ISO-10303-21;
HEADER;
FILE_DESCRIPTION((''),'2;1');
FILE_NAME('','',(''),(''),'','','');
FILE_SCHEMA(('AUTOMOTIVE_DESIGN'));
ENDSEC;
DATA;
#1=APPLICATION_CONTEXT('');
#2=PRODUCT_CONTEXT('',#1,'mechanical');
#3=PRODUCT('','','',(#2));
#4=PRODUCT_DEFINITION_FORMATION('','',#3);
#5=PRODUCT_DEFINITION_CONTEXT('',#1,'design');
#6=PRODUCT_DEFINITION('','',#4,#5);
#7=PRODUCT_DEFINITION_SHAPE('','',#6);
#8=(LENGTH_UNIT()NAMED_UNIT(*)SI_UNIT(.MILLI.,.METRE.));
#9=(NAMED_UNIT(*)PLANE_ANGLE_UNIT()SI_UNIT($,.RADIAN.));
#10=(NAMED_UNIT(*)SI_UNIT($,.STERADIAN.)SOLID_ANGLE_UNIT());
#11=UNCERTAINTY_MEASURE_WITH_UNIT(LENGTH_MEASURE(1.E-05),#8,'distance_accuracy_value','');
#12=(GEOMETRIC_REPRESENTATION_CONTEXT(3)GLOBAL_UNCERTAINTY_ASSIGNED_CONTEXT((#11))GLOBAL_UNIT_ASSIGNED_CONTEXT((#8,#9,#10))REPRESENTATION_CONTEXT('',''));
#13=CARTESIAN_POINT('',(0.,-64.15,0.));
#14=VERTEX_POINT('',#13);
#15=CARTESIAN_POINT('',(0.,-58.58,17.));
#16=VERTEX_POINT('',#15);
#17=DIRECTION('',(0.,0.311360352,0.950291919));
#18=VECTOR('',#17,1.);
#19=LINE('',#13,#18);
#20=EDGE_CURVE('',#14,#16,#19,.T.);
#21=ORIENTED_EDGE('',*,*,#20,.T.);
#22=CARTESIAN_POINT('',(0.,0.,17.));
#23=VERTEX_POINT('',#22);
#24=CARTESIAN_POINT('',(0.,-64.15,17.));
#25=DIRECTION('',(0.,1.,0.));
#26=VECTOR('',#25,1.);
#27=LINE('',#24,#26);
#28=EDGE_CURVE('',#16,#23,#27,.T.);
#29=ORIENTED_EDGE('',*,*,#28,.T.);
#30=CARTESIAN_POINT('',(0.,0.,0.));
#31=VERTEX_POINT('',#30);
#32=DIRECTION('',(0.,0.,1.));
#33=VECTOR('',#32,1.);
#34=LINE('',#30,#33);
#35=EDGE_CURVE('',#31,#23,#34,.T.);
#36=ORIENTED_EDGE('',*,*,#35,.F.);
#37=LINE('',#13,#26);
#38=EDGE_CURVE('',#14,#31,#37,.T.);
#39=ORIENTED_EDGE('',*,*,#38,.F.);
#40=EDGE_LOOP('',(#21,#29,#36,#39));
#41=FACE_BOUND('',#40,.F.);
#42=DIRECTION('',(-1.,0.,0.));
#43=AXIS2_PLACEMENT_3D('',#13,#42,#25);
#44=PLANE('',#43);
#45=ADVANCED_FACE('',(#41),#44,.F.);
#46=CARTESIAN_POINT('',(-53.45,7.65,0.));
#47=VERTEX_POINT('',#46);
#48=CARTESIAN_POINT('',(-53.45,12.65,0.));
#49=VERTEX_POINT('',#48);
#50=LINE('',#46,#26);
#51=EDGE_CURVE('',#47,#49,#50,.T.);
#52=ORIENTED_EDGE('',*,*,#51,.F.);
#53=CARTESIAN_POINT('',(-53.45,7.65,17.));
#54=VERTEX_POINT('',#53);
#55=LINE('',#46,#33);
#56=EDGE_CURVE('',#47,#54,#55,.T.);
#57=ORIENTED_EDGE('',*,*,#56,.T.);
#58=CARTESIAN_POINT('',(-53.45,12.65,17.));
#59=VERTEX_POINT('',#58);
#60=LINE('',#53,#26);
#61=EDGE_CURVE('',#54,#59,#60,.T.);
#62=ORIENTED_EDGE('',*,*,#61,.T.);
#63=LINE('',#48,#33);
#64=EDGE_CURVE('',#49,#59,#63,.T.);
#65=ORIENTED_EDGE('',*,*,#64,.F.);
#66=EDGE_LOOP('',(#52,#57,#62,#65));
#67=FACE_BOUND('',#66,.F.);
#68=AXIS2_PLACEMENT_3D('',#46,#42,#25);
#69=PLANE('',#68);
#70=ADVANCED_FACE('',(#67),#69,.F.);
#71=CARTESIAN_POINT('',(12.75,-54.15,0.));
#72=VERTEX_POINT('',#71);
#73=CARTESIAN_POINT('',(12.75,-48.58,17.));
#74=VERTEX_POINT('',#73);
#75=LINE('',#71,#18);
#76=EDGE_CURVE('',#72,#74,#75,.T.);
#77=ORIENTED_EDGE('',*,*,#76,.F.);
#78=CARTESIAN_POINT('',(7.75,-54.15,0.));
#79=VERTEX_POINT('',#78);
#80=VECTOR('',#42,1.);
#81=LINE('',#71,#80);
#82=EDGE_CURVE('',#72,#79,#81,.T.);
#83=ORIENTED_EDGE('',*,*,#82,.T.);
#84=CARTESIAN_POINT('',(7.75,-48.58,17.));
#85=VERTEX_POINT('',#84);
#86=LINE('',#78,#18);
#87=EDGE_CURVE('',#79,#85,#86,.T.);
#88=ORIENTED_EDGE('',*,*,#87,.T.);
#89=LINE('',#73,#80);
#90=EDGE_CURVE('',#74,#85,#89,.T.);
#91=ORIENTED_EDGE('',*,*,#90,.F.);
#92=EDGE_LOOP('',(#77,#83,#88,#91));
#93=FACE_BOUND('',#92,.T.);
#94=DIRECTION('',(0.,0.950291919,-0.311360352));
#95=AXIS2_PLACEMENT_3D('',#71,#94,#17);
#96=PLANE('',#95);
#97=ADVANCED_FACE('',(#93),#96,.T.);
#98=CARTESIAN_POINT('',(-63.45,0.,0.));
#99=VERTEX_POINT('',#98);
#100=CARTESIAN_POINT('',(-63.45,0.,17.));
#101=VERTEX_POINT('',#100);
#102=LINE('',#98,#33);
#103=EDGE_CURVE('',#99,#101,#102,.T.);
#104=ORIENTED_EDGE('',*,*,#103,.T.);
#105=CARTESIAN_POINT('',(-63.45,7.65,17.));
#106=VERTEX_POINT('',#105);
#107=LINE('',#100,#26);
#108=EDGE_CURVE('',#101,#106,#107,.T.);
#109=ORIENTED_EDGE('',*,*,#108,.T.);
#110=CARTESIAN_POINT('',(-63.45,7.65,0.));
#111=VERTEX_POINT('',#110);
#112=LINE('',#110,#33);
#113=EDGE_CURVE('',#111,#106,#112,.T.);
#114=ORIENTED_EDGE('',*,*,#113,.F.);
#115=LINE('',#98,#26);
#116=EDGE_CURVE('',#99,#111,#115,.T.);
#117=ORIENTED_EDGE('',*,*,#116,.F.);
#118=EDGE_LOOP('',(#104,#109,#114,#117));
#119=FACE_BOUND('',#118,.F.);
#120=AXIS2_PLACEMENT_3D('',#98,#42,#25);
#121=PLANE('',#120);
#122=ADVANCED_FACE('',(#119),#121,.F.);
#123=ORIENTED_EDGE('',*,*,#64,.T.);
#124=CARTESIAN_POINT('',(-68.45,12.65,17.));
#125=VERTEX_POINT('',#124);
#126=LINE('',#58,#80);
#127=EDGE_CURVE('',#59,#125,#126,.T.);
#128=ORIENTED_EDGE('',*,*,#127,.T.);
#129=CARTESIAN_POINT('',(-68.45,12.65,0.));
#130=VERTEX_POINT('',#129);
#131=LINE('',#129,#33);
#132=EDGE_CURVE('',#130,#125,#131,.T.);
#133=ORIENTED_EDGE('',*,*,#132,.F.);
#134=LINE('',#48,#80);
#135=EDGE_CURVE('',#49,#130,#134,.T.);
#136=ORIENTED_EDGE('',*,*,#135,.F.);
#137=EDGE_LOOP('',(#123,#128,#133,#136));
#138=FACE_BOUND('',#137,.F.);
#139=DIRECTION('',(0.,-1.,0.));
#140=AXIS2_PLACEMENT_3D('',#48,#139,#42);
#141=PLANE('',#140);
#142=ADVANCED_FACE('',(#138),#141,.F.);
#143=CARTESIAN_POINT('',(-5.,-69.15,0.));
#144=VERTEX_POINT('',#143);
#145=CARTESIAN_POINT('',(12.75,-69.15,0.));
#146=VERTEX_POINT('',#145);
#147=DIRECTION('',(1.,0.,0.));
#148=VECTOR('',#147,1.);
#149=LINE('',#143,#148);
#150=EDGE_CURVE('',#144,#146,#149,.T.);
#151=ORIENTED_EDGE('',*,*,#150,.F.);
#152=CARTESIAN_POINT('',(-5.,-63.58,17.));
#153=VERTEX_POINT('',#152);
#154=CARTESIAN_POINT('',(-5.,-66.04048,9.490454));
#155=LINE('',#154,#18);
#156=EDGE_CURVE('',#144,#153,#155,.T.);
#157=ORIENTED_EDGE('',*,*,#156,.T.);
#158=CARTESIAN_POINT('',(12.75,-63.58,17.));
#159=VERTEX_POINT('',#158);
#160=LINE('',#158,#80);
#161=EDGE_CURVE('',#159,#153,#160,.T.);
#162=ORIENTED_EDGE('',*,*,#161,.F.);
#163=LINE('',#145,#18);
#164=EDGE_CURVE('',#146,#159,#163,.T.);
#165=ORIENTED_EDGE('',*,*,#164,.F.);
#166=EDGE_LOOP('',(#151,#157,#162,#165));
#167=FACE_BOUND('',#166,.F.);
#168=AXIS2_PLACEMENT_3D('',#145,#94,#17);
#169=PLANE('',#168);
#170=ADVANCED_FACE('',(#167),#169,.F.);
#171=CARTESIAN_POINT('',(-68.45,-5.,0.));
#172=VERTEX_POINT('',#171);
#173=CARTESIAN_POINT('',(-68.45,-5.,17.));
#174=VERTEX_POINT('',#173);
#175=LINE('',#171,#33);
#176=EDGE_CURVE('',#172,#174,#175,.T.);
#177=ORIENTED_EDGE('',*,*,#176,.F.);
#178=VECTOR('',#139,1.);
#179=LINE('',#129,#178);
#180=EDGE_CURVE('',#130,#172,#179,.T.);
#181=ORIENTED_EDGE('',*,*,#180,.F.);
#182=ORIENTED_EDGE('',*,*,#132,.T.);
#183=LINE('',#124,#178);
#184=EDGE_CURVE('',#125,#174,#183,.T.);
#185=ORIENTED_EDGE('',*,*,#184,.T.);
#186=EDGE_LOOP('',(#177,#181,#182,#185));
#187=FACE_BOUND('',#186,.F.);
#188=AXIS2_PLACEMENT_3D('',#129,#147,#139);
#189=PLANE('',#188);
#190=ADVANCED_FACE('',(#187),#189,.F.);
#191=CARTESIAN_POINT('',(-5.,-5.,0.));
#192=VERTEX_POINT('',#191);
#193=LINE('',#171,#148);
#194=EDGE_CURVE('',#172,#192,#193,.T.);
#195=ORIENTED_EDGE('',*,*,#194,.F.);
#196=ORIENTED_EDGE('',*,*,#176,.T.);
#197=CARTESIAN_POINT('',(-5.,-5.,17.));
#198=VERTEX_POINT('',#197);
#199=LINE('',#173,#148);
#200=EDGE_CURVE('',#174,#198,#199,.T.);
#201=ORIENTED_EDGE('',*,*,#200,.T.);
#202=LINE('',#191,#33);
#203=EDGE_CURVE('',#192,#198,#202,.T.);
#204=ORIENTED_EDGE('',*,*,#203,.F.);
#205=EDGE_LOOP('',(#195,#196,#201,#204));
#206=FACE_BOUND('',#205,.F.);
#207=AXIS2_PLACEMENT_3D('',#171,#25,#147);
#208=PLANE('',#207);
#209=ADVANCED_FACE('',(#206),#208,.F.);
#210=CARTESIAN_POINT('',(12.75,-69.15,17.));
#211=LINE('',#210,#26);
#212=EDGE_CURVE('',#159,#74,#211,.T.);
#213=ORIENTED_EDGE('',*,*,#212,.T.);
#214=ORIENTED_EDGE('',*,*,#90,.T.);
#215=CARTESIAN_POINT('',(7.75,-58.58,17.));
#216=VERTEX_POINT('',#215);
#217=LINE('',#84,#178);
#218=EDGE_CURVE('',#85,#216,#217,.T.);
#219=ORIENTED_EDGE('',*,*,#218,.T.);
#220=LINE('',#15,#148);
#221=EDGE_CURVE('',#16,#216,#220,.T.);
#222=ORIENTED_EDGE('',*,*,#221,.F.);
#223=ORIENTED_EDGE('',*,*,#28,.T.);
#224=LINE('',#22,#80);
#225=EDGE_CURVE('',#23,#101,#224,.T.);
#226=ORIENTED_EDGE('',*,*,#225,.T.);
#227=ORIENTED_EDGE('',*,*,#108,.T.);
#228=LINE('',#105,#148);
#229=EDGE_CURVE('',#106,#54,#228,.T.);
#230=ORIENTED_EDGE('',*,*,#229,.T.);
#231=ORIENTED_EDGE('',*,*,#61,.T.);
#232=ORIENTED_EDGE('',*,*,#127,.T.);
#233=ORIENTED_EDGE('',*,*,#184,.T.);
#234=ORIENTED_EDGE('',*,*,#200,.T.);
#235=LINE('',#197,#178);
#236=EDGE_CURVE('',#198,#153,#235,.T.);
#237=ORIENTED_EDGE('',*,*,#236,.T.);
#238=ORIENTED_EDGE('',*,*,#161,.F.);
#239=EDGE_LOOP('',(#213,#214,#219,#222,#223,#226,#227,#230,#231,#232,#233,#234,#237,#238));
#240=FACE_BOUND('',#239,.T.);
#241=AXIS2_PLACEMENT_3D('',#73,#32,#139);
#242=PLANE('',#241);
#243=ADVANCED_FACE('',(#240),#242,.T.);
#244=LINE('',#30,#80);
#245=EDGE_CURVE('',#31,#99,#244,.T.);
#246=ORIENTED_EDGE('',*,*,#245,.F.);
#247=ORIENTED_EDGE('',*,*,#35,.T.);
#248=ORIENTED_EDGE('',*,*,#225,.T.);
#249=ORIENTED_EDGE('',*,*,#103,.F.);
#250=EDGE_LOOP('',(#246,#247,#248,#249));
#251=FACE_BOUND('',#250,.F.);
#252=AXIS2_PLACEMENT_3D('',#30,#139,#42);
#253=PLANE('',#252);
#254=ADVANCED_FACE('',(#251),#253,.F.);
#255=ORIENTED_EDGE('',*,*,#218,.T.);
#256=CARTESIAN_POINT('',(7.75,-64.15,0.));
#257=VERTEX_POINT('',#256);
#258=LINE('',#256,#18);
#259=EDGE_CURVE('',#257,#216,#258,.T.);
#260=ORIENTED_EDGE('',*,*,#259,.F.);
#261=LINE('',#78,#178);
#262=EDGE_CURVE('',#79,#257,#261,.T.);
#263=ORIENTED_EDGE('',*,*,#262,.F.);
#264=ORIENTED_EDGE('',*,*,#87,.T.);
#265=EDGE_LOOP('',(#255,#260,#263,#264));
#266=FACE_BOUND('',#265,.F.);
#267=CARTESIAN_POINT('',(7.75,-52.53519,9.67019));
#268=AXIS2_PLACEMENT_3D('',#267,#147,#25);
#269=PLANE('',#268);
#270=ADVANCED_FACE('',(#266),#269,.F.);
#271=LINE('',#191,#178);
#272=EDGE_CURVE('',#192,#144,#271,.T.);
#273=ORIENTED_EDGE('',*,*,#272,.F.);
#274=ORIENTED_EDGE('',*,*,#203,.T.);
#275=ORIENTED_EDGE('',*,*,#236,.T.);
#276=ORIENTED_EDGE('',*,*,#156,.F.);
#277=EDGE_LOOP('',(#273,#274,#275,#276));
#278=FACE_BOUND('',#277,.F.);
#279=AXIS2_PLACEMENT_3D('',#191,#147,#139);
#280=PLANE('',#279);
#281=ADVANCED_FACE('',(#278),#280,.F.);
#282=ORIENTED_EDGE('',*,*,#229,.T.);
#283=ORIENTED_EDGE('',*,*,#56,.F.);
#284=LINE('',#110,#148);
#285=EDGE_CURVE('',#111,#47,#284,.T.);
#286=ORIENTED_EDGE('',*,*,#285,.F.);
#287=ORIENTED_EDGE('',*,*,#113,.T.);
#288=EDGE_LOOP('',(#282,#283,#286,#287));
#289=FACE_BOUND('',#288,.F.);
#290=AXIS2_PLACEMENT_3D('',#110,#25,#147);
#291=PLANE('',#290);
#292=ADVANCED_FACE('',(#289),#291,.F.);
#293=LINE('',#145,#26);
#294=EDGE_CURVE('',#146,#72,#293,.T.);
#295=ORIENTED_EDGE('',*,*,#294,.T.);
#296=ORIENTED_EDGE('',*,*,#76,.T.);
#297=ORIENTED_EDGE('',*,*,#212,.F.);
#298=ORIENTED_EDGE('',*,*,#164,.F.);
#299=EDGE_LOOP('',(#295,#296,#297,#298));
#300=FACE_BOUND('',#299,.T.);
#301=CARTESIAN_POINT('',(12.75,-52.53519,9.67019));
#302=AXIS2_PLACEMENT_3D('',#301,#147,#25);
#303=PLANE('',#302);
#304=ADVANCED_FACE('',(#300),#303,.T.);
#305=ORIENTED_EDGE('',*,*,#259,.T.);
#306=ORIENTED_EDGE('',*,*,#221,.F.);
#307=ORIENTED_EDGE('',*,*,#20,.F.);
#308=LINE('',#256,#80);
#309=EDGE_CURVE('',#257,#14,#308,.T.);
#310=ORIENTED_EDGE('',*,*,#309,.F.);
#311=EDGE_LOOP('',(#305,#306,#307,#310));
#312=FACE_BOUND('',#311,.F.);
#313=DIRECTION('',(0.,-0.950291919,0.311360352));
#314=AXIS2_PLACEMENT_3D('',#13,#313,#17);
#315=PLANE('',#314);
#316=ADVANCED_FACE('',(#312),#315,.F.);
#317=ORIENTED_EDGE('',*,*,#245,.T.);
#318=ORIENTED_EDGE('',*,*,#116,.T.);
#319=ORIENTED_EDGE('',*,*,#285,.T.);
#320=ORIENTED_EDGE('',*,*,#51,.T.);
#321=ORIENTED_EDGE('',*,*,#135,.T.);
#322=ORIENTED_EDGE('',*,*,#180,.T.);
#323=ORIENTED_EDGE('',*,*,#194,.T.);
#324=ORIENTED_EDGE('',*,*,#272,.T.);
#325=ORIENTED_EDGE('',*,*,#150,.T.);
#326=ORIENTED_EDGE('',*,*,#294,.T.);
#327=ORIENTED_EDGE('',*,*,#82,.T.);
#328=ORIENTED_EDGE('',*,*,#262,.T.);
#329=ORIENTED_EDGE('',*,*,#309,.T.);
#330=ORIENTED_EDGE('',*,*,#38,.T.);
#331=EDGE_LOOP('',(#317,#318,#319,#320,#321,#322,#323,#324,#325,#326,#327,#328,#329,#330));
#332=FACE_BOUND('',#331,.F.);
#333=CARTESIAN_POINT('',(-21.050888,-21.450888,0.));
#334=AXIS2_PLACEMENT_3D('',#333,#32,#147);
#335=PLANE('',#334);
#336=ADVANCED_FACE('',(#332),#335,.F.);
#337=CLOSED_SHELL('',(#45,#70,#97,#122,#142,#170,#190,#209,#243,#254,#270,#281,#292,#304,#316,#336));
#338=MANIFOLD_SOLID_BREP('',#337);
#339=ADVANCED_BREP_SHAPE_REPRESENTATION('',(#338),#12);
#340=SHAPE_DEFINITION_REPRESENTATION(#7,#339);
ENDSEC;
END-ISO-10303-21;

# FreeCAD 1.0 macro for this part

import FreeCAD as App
import Part
import Sketcher
from FreeCAD import Vector
Q = App.Units.Quantity


def add_polygon(sketch, points):
    """Adds a closed chain of lines whose ends are joined by coincident constraints."""
    first, n = sketch.GeometryCount, len(points)
    for a, b in zip(points, points[1:] + points[:1]):
        sketch.addGeometry(Part.LineSegment(App.Vector(*a, 0), App.Vector(*b, 0)), False)
    for i in range(n):
        sketch.addConstraint(Sketcher.Constraint("Coincident", first + i, 2, first + (i + 1) % n, 1))

doc = App.newDocument("Part")
body = doc.addObject("PartDesign::Body", "Body")

# Sketch on XY plane
sketch1 = body.newObject("Sketcher::SketchObject", "Sketch")
sketch1.AttachmentSupport = (doc.getObject("XY_Plane"), [""])
sketch1.MapMode = "FlatFace"
add_polygon(sketch1, [(0, -64), (0, 0), (-63, 0), (-63, 8), (-53, 8), (-53, 13), (-68, 13), (-68, -5), (-5, -5), (-5, -69), (13, -69), (13, -54), (8, -54), (8, -64)])  # lines 0-13
sketch1.addConstraint([
    Sketcher.Constraint("Vertical", 0),
    Sketcher.Constraint("Horizontal", 1),
    Sketcher.Constraint("Vertical", 2),
    Sketcher.Constraint("Horizontal", 3),
    Sketcher.Constraint("Vertical", 4),
    Sketcher.Constraint("Horizontal", 5),
    Sketcher.Constraint("Vertical", 6),
    Sketcher.Constraint("Horizontal", 7),
    Sketcher.Constraint("Vertical", 8),
    Sketcher.Constraint("Horizontal", 9),
    Sketcher.Constraint("Vertical", 10),
    Sketcher.Constraint("Horizontal", 11),
    Sketcher.Constraint("Vertical", 12),
    Sketcher.Constraint("Horizontal", 13),
    Sketcher.Constraint("Coincident", 0, 2, -1, 1),
    Sketcher.Constraint("Equal", 1, 7),
    Sketcher.Constraint("Equal", 11, 4),
    Sketcher.Constraint("Equal", 0, 8),
    Sketcher.Constraint("Equal", 5, 10),
    Sketcher.Constraint("Equal", 3, 12),
    Sketcher.Constraint("DistanceX", 3, 1, 3, 2, Q("10 mm")),
    Sketcher.Constraint("DistanceX", 5, 2, 5, 1, Q("15 mm")),
    Sketcher.Constraint("DistanceX", 11, 2, 11, 1, Q("5 mm")),
    Sketcher.Constraint("DistanceX", 1, 2, 1, 1, Q("63.45 mm")),
    Sketcher.Constraint("DistanceX", 9, 1, 9, 2, Q("17.75 mm")),
    Sketcher.Constraint("DistanceY", 0, 1, 0, 2, Q("64.15 mm")),
    Sketcher.Constraint("DistanceY", 2, 1, 2, 2, Q("7.65 mm")),
])
pad1 = body.newObject("PartDesign::Pad", "Pad")
pad1.Profile = sketch1
pad1.Length = 17

# Sketch on YZ plane
sketch2 = body.newObject("Sketcher::SketchObject", "Sketch001")
sketch2.AttachmentSupport = (doc.getObject("YZ_Plane"), [""])
sketch2.MapMode = "FlatFace"
add_polygon(sketch2, [(-59, 17), (-64, 17), (-64, 0)])  # lines 0-2
sketch2.addConstraint([
    Sketcher.Constraint("Horizontal", 0),
    Sketcher.Constraint("Vertical", 1),
    Sketcher.Constraint("PointOnObject", 1, 2, -1),
    Sketcher.Constraint("DistanceY", 1, 2, 1, 1, Q("17 mm")),
    Sketcher.Constraint("DistanceX", 0, 2, 0, 1, Q("5.57 mm")),
    Sketcher.Constraint("DistanceX", 0, 2, -1, 1, Q("64.15 mm")),
])
pad2 = body.newObject("PartDesign::Pad", "Pad001")
pad2.Profile = sketch2
pad2.Length = 7.75

# Sketch on YZ plane
sketch3 = body.newObject("Sketcher::SketchObject", "Sketch002")
sketch3.AttachmentSupport = (doc.getObject("YZ_Plane"), [""])
sketch3.MapMode = "FlatFace"
sketch3.AttachmentOffset = App.Placement(Vector(0, 0, 12.75), App.Rotation())
add_polygon(sketch3, [(-49, 17), (-54, 17), (-54, 0)])  # lines 0-2
sketch3.addConstraint([
    Sketcher.Constraint("Horizontal", 0),
    Sketcher.Constraint("Vertical", 1),
    Sketcher.Constraint("PointOnObject", 1, 2, -1),
    Sketcher.Constraint("DistanceY", 1, 2, 1, 1, Q("17 mm")),
    Sketcher.Constraint("DistanceX", 0, 2, 0, 1, Q("5.57 mm")),
    Sketcher.Constraint("DistanceX", 0, 2, -1, 1, Q("54.15 mm")),
])
pad3 = body.newObject("PartDesign::Pad", "Pad002")
pad3.Profile = sketch3
pad3.Length = 5
pad3.Reversed = True

# Sketch on YZ plane
sketch4 = body.newObject("Sketcher::SketchObject", "Sketch003")
sketch4.AttachmentSupport = (doc.getObject("YZ_Plane"), [""])
sketch4.MapMode = "FlatFace"
sketch4.AttachmentOffset = App.Placement(Vector(0, 0, 12.75), App.Rotation())
add_polygon(sketch4, [(-64, 17), (-69, 17), (-69, 0)])  # lines 0-2
sketch4.addConstraint([
    Sketcher.Constraint("Horizontal", 0),
    Sketcher.Constraint("Vertical", 1),
    Sketcher.Constraint("PointOnObject", 1, 2, -1),
    Sketcher.Constraint("DistanceY", 1, 2, 1, 1, Q("17 mm")),
    Sketcher.Constraint("DistanceX", 0, 2, 0, 1, Q("5.57 mm")),
    Sketcher.Constraint("DistanceX", 0, 2, -1, 1, Q("69.15 mm")),
])
pocket1 = body.newObject("PartDesign::Pocket", "Pocket")
pocket1.Profile = sketch4
pocket1.Length = 25

doc.recompute()
